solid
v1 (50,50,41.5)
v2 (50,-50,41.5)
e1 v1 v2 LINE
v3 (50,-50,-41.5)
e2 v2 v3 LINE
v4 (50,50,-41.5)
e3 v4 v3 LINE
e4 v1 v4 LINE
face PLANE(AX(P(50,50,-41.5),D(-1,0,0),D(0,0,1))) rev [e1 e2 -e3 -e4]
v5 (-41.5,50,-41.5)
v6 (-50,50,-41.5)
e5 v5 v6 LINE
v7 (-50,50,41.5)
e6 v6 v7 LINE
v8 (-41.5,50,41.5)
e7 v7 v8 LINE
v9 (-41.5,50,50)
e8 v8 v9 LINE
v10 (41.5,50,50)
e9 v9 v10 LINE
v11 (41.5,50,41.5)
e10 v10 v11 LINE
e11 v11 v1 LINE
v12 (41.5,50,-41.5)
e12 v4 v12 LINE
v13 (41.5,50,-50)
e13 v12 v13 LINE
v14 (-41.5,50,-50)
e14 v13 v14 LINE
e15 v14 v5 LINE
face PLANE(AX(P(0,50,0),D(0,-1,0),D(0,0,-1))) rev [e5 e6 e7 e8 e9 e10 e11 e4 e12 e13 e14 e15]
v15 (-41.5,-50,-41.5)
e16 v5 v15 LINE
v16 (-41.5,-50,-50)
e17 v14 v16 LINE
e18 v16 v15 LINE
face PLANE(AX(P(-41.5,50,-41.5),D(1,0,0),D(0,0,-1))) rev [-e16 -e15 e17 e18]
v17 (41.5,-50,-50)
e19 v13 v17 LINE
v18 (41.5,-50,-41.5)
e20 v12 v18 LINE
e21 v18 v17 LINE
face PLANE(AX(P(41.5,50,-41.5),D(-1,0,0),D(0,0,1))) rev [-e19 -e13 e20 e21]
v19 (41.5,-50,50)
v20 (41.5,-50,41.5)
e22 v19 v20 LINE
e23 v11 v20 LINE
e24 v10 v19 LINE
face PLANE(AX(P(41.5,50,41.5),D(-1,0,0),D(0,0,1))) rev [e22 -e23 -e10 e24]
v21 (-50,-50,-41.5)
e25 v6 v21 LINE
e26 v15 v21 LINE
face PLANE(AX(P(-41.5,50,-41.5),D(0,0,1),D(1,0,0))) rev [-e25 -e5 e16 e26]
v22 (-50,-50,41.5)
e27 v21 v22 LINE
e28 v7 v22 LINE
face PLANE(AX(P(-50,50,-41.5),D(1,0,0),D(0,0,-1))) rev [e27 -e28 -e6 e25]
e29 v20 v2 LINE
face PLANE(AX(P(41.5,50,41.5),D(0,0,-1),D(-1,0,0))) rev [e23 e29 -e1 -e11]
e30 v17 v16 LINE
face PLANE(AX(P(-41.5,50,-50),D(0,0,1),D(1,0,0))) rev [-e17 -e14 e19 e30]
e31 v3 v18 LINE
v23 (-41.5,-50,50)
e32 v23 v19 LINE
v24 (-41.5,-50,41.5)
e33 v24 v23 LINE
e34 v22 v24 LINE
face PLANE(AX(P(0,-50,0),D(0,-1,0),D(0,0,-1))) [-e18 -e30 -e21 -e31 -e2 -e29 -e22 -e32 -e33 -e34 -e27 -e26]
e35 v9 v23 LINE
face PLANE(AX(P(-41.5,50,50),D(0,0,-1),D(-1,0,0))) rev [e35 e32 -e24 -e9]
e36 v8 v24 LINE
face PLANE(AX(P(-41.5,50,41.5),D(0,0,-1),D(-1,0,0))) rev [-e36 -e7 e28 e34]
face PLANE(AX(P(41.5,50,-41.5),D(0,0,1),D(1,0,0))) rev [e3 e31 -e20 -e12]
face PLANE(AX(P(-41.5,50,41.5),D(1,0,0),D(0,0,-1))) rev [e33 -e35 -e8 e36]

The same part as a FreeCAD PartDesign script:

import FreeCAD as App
import Part
import Sketcher

V = App.Vector
Q = App.Units.Quantity

doc = App.newDocument("Part")
body = doc.addObject("PartDesign::Body", "Body")

# Sketch on XZ plane
sketch1 = body.newObject("Sketcher::SketchObject", "Sketch")
sketch1.AttachmentSupport = (doc.getObject("XZ_Plane"), [""])
sketch1.MapMode = "FlatFace"
sketch1.addGeometry(Part.LineSegment(V(50, -41.5, 0), V(41.5, -41.5, 0)), False)
sketch1.addGeometry(Part.LineSegment(V(41.5, -41.5, 0), V(41.5, -50, 0)), False)
sketch1.addGeometry(Part.LineSegment(V(41.5, -50, 0), V(-41.5, -50, 0)), False)
sketch1.addGeometry(Part.LineSegment(V(-41.5, -50, 0), V(-41.5, -41.5, 0)), False)
sketch1.addGeometry(Part.LineSegment(V(-41.5, -41.5, 0), V(-50, -41.5, 0)), False)
sketch1.addGeometry(Part.LineSegment(V(-50, -41.5, 0), V(-50, 41.5, 0)), False)
sketch1.addGeometry(Part.LineSegment(V(-50, 41.5, 0), V(-41.5, 41.5, 0)), False)
sketch1.addGeometry(Part.LineSegment(V(-41.5, 41.5, 0), V(-41.5, 50, 0)), False)
sketch1.addGeometry(Part.LineSegment(V(-41.5, 50, 0), V(41.5, 50, 0)), False)
sketch1.addGeometry(Part.LineSegment(V(41.5, 50, 0), V(41.5, 41.5, 0)), False)
sketch1.addGeometry(Part.LineSegment(V(41.5, 41.5, 0), V(50, 41.5, 0)), False)
sketch1.addGeometry(Part.LineSegment(V(50, 41.5, 0), V(50, -41.5, 0)), False)
sketch1.addConstraint(Sketcher.Constraint("Coincident", 0, 2, 1, 1))
sketch1.addConstraint(Sketcher.Constraint("Coincident", 1, 2, 2, 1))
sketch1.addConstraint(Sketcher.Constraint("Coincident", 2, 2, 3, 1))
sketch1.addConstraint(Sketcher.Constraint("Coincident", 3, 2, 4, 1))
sketch1.addConstraint(Sketcher.Constraint("Coincident", 4, 2, 5, 1))
sketch1.addConstraint(Sketcher.Constraint("Coincident", 5, 2, 6, 1))
sketch1.addConstraint(Sketcher.Constraint("Coincident", 6, 2, 7, 1))
sketch1.addConstraint(Sketcher.Constraint("Coincident", 7, 2, 8, 1))
sketch1.addConstraint(Sketcher.Constraint("Coincident", 8, 2, 9, 1))
sketch1.addConstraint(Sketcher.Constraint("Coincident", 9, 2, 10, 1))
sketch1.addConstraint(Sketcher.Constraint("Coincident", 10, 2, 11, 1))
sketch1.addConstraint(Sketcher.Constraint("Coincident", 11, 2, 0, 1))
sketch1.addConstraint(Sketcher.Constraint("Horizontal", 0))
sketch1.addConstraint(Sketcher.Constraint("Vertical", 1))
sketch1.addConstraint(Sketcher.Constraint("Horizontal", 2))
sketch1.addConstraint(Sketcher.Constraint("Vertical", 3))
sketch1.addConstraint(Sketcher.Constraint("Horizontal", 4))
sketch1.addConstraint(Sketcher.Constraint("Vertical", 5))
sketch1.addConstraint(Sketcher.Constraint("Horizontal", 6))
sketch1.addConstraint(Sketcher.Constraint("Vertical", 7))
sketch1.addConstraint(Sketcher.Constraint("Horizontal", 8))
sketch1.addConstraint(Sketcher.Constraint("Vertical", 9))
sketch1.addConstraint(Sketcher.Constraint("Horizontal", 10))
sketch1.addConstraint(Sketcher.Constraint("Vertical", 11))
sketch1.addConstraint(Sketcher.Constraint("Symmetric", 0, 2, 6, 2, -1, 1))
sketch1.addConstraint(Sketcher.Constraint("Symmetric", 2, 2, 8, 2, -1, 1))
sketch1.addConstraint(Sketcher.Constraint("Symmetric", 4, 2, 10, 2, -1, 1))
sketch1.addConstraint(Sketcher.Constraint("Symmetric", 0, 2, 3, 2, -2))
sketch1.addConstraint(Sketcher.Constraint("Equal", 10, 1))
sketch1.addConstraint(Sketcher.Constraint("Equal", 8, 5))
sketch1.addConstraint(Sketcher.Constraint("DistanceX", 2, 2, 2, 1, Q("83 mm")))
sketch1.addConstraint(Sketcher.Constraint("DistanceX", 0, 2, 0, 1, Q("8.5 mm")))
pad1 = body.newObject("PartDesign::Pad", "Pad")
pad1.Profile = sketch1
pad1.Length = 100
pad1.Midplane = True

doc.recompute()
